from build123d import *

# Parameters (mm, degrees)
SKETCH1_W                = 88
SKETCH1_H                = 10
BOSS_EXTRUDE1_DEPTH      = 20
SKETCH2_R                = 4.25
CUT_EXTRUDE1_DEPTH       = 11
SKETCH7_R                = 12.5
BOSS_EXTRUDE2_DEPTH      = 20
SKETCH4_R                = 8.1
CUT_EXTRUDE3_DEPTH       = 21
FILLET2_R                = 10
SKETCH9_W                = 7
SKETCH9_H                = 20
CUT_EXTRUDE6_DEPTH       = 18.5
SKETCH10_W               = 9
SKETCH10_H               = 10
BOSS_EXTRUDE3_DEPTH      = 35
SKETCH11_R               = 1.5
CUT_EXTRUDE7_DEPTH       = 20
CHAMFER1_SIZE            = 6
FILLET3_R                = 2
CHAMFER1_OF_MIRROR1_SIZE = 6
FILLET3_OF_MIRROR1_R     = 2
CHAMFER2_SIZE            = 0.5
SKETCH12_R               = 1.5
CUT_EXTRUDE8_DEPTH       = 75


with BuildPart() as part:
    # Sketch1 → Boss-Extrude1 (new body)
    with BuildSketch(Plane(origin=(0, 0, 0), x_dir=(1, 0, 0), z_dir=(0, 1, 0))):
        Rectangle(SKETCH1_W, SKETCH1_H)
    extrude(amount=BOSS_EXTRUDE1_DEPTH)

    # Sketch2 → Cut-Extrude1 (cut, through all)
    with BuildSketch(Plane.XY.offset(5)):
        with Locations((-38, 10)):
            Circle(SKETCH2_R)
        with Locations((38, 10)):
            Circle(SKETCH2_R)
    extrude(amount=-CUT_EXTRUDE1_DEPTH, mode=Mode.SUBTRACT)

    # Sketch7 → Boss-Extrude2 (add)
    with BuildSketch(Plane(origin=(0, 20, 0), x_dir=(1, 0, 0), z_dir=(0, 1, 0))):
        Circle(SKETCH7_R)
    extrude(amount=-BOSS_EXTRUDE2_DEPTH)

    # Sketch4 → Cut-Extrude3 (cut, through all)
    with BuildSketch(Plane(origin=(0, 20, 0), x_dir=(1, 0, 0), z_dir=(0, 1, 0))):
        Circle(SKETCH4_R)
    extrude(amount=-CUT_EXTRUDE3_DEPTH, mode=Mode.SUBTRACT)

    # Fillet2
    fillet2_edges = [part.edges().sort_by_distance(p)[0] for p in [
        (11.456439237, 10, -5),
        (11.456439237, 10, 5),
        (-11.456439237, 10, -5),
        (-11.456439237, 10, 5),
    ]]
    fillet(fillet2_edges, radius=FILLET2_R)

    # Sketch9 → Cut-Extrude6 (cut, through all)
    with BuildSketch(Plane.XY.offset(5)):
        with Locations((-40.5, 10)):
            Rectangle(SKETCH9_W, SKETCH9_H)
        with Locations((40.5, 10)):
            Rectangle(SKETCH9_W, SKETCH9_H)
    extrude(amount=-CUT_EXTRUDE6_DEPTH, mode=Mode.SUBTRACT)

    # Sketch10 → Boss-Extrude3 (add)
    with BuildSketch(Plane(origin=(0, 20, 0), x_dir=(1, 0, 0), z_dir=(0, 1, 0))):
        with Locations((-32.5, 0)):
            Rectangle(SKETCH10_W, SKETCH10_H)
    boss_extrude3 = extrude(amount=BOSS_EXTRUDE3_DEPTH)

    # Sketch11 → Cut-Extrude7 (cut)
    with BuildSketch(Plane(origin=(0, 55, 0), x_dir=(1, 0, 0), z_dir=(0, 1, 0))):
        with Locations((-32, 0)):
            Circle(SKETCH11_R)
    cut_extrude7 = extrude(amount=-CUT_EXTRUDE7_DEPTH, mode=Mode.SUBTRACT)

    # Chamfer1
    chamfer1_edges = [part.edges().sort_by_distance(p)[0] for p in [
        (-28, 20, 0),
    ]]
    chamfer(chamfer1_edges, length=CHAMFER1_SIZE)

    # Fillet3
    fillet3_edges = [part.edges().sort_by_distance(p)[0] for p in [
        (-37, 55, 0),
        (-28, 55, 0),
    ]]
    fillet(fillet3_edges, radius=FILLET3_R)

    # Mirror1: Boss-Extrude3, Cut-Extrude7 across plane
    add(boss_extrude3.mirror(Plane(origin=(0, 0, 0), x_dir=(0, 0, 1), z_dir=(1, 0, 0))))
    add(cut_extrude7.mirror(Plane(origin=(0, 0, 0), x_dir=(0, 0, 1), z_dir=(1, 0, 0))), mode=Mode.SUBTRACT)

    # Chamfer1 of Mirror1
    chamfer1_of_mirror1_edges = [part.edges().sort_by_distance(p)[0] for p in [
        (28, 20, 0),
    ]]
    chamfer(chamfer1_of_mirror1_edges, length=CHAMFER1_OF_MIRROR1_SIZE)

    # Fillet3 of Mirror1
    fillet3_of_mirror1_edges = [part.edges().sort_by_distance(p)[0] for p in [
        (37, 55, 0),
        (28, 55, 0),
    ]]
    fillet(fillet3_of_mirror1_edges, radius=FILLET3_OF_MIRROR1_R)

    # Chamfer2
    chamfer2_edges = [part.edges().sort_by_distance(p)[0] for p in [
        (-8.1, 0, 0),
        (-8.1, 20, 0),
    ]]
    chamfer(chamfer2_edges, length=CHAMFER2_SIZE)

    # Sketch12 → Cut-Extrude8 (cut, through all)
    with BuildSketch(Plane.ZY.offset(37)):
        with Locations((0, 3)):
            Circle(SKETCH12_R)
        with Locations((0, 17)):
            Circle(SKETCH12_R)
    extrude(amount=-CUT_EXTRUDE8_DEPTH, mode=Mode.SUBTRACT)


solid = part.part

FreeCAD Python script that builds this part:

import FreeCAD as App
import Part
import Sketcher

V = App.Vector
Q = App.Units.Quantity


def edges_at(feature, points):
    """Names of the edges that pass closest to the given points."""
    edges = feature.Shape.Edges
    near = lambda p: min(range(len(edges)), key=lambda i: edges[i].distToShape(Part.Vertex(*p))[0])
    return sorted({f"Edge{near(p) + 1}" for p in points})

doc = App.newDocument("Part")
body = doc.addObject("PartDesign::Body", "Body")

# Sketch on XZ plane
sketch1 = body.newObject("Sketcher::SketchObject", "Sketch")
sketch1.AttachmentSupport = (doc.getObject("XZ_Plane"), [""])
sketch1.MapMode = "FlatFace"
sketch1.addGeometry(Part.LineSegment(V(-44, -5, 0), V(-44, 5, 0)), False)
sketch1.addGeometry(Part.LineSegment(V(-44, 5, 0), V(44, 5, 0)), False)
sketch1.addGeometry(Part.LineSegment(V(44, 5, 0), V(44, -5, 0)), False)
sketch1.addGeometry(Part.LineSegment(V(44, -5, 0), V(-44, -5, 0)), False)
sketch1.addConstraint(Sketcher.Constraint("Coincident", 0, 2, 1, 1))
sketch1.addConstraint(Sketcher.Constraint("Coincident", 1, 2, 2, 1))
sketch1.addConstraint(Sketcher.Constraint("Coincident", 2, 2, 3, 1))
sketch1.addConstraint(Sketcher.Constraint("Coincident", 3, 2, 0, 1))
sketch1.addConstraint(Sketcher.Constraint("Vertical", 0))
sketch1.addConstraint(Sketcher.Constraint("Horizontal", 1))
sketch1.addConstraint(Sketcher.Constraint("Vertical", 2))
sketch1.addConstraint(Sketcher.Constraint("Horizontal", 3))
sketch1.addConstraint(Sketcher.Constraint("Symmetric", 0, 2, 2, 2, -1, 1))
sketch1.addConstraint(Sketcher.Constraint("DistanceX", 1, 1, 1, 2, Q("88 mm")))
sketch1.addConstraint(Sketcher.Constraint("DistanceY", 0, 1, 0, 2, Q("10 mm")))
pad1 = body.newObject("PartDesign::Pad", "Pad")
pad1.Profile = sketch1
pad1.Length = 20
pad1.Reversed = True

# Sketch on XY plane
sketch2 = body.newObject("Sketcher::SketchObject", "Sketch001")
sketch2.AttachmentSupport = (doc.getObject("XY_Plane"), [""])
sketch2.MapMode = "FlatFace"
sketch2.AttachmentOffset = App.Placement(V(0, 0, 5), App.Rotation())
sketch2.addGeometry(Part.Circle(V(-38, 10, 0), V(0, 0, 1), 4.25), False)
sketch2.addGeometry(Part.Circle(V(38, 10, 0), V(0, 0, 1), 4.25), False)
sketch2.addConstraint(Sketcher.Constraint("Equal", 0, 1))
sketch2.addConstraint(Sketcher.Constraint("Symmetric", 0, 3, 1, 3, -2))
sketch2.addConstraint(Sketcher.Constraint("Diameter", 0, Q("8.5 mm")))
sketch2.addConstraint(Sketcher.Constraint("DistanceX", 0, 3, -1, 1, Q("38 mm")))
sketch2.addConstraint(Sketcher.Constraint("DistanceY", -1, 1, 0, 3, Q("10 mm")))
pocket1 = body.newObject("PartDesign::Pocket", "Pocket")
pocket1.Profile = sketch2
pocket1.Type = "ThroughAll"

# Sketch on XZ plane
sketch3 = body.newObject("Sketcher::SketchObject", "Sketch002")
sketch3.AttachmentSupport = (doc.getObject("XZ_Plane"), [""])
sketch3.MapMode = "FlatFace"
sketch3.AttachmentOffset = App.Placement(V(0, 0, -20), App.Rotation())
sketch3.addGeometry(Part.Circle(V(0, 0, 0), V(0, 0, 1), 12.5), False)
sketch3.addConstraint(Sketcher.Constraint("Coincident", 0, 3, -1, 1))
sketch3.addConstraint(Sketcher.Constraint("Diameter", 0, Q("25 mm")))
pad2 = body.newObject("PartDesign::Pad", "Pad001")
pad2.Profile = sketch3
pad2.Length = 20

# Sketch on XZ plane
sketch4 = body.newObject("Sketcher::SketchObject", "Sketch003")
sketch4.AttachmentSupport = (doc.getObject("XZ_Plane"), [""])
sketch4.MapMode = "FlatFace"
sketch4.AttachmentOffset = App.Placement(V(0, 0, -20), App.Rotation())
sketch4.addGeometry(Part.Circle(V(0, 0, 0), V(0, 0, 1), 8.1), False)
sketch4.addConstraint(Sketcher.Constraint("Coincident", 0, 3, -1, 1))
sketch4.addConstraint(Sketcher.Constraint("Diameter", 0, Q("16.2 mm")))
pocket2 = body.newObject("PartDesign::Pocket", "Pocket001")
pocket2.Profile = sketch4
pocket2.Type = "ThroughAll"
pocket2.Reversed = True
doc.recompute()

fillet = body.newObject("PartDesign::Fillet", "Fillet")
fillet.Base = (pocket2, edges_at(pocket2, [
    (11.456, 10, -5),
    (11.456, 10, 5),
    (-11.456, 10, -5),
    (-11.456, 10, 5),
]))
fillet.Radius = 10

# Sketch on XY plane
sketch5 = body.newObject("Sketcher::SketchObject", "Sketch004")
sketch5.AttachmentSupport = (doc.getObject("XY_Plane"), [""])
sketch5.MapMode = "FlatFace"
sketch5.AttachmentOffset = App.Placement(V(0, 0, 5), App.Rotation())
sketch5.addGeometry(Part.LineSegment(V(-44, 20, 0), V(-44, 0, 0)), False)
sketch5.addGeometry(Part.LineSegment(V(-44, 0, 0), V(-37, 0, 0)), False)
sketch5.addGeometry(Part.LineSegment(V(-37, 0, 0), V(-37, 20, 0)), False)
sketch5.addGeometry(Part.LineSegment(V(-37, 20, 0), V(-44, 20, 0)), False)
sketch5.addGeometry(Part.LineSegment(V(37, 20, 0), V(37, 0, 0)), False)
sketch5.addGeometry(Part.LineSegment(V(37, 0, 0), V(44, 0, 0)), False)
sketch5.addGeometry(Part.LineSegment(V(44, 0, 0), V(44, 20, 0)), False)
sketch5.addGeometry(Part.LineSegment(V(44, 20, 0), V(37, 20, 0)), False)
sketch5.addConstraint(Sketcher.Constraint("Coincident", 0, 2, 1, 1))
sketch5.addConstraint(Sketcher.Constraint("Coincident", 1, 2, 2, 1))
sketch5.addConstraint(Sketcher.Constraint("Coincident", 2, 2, 3, 1))
sketch5.addConstraint(Sketcher.Constraint("Coincident", 3, 2, 0, 1))
sketch5.addConstraint(Sketcher.Constraint("Coincident", 4, 2, 5, 1))
sketch5.addConstraint(Sketcher.Constraint("Coincident", 5, 2, 6, 1))
sketch5.addConstraint(Sketcher.Constraint("Coincident", 6, 2, 7, 1))
sketch5.addConstraint(Sketcher.Constraint("Coincident", 7, 2, 4, 1))
sketch5.addConstraint(Sketcher.Constraint("Vertical", 0))
sketch5.addConstraint(Sketcher.Constraint("Horizontal", 1))
sketch5.addConstraint(Sketcher.Constraint("Vertical", 2))
sketch5.addConstraint(Sketcher.Constraint("Horizontal", 3))
sketch5.addConstraint(Sketcher.Constraint("Vertical", 4))
sketch5.addConstraint(Sketcher.Constraint("Horizontal", 5))
sketch5.addConstraint(Sketcher.Constraint("Vertical", 6))
sketch5.addConstraint(Sketcher.Constraint("Horizontal", 7))
sketch5.addConstraint(Sketcher.Constraint("Symmetric", 1, 2, 4, 2, -1, 1))
sketch5.addConstraint(Sketcher.Constraint("Symmetric", 0, 2, 5, 2, -2))
sketch5.addConstraint(Sketcher.Constraint("Horizontal", 3, 2, 6, 2))
sketch5.addConstraint(Sketcher.Constraint("DistanceX", 1, 1, 1, 2, Q("7 mm")))
sketch5.addConstraint(Sketcher.Constraint("DistanceY", 0, 2, 0, 1, Q("20 mm")))
sketch5.addConstraint(Sketcher.Constraint("DistanceX", 0, 2, -1, 1, Q("44 mm")))
pocket3 = body.newObject("PartDesign::Pocket", "Pocket002")
pocket3.Profile = sketch5
pocket3.Type = "ThroughAll"

# Sketch on XZ plane
sketch6 = body.newObject("Sketcher::SketchObject", "Sketch005")
sketch6.AttachmentSupport = (doc.getObject("XZ_Plane"), [""])
sketch6.MapMode = "FlatFace"
sketch6.AttachmentOffset = App.Placement(V(0, 0, -20), App.Rotation())
sketch6.addGeometry(Part.LineSegment(V(-37, -5, 0), V(-37, 5, 0)), False)
sketch6.addGeometry(Part.LineSegment(V(-37, 5, 0), V(-28, 5, 0)), False)
sketch6.addGeometry(Part.LineSegment(V(-28, 5, 0), V(-28, -5, 0)), False)
sketch6.addGeometry(Part.LineSegment(V(-28, -5, 0), V(-37, -5, 0)), False)
sketch6.addConstraint(Sketcher.Constraint("Coincident", 0, 2, 1, 1))
sketch6.addConstraint(Sketcher.Constraint("Coincident", 1, 2, 2, 1))
sketch6.addConstraint(Sketcher.Constraint("Coincident", 2, 2, 3, 1))
sketch6.addConstraint(Sketcher.Constraint("Coincident", 3, 2, 0, 1))
sketch6.addConstraint(Sketcher.Constraint("Vertical", 0))
sketch6.addConstraint(Sketcher.Constraint("Horizontal", 1))
sketch6.addConstraint(Sketcher.Constraint("Vertical", 2))
sketch6.addConstraint(Sketcher.Constraint("Horizontal", 3))
sketch6.addConstraint(Sketcher.Constraint("DistanceX", 1, 1, 1, 2, Q("9 mm")))
sketch6.addConstraint(Sketcher.Constraint("DistanceY", 0, 1, 0, 2, Q("10 mm")))
sketch6.addConstraint(Sketcher.Constraint("DistanceX", 0, 2, -1, 1, Q("37 mm")))
sketch6.addConstraint(Sketcher.Constraint("DistanceY", -1, 1, 0, 2, Q("5 mm")))
pad3 = body.newObject("PartDesign::Pad", "Pad002")
pad3.Profile = sketch6
pad3.Length = 35
pad3.Reversed = True

# Sketch on XZ plane
sketch7 = body.newObject("Sketcher::SketchObject", "Sketch006")
sketch7.AttachmentSupport = (doc.getObject("XZ_Plane"), [""])
sketch7.MapMode = "FlatFace"
sketch7.AttachmentOffset = App.Placement(V(0, 0, -55), App.Rotation())
sketch7.addGeometry(Part.Circle(V(-32, 0, 0), V(0, 0, 1), 1.5), False)
sketch7.addConstraint(Sketcher.Constraint("PointOnObject", 0, 3, -1))
sketch7.addConstraint(Sketcher.Constraint("Diameter", 0, Q("3 mm")))
sketch7.addConstraint(Sketcher.Constraint("DistanceX", 0, 3, -1, 1, Q("32 mm")))
pocket4 = body.newObject("PartDesign::Pocket", "Pocket003")
pocket4.Profile = sketch7
pocket4.Length = 20
pocket4.Reversed = True
doc.recompute()

chamfer = body.newObject("PartDesign::Chamfer", "Chamfer")
chamfer.Base = (pocket4, edges_at(pocket4, [(-28, 20, 0)]))
chamfer.Size = 6
doc.recompute()

fillet2 = body.newObject("PartDesign::Fillet", "Fillet001")
fillet2.Base = (chamfer, edges_at(chamfer, [(-37, 55, 0), (-28, 55, 0)]))
fillet2.Radius = 2
doc.recompute()

mirrored = body.newObject("PartDesign::Mirrored", "Mirrored")
mirrored.Originals = [pad3, pocket4]
mirrored.MirrorPlane = (doc.getObject("YZ_Plane"), [""])
body.Tip = mirrored
doc.recompute()

chamfer2 = body.newObject("PartDesign::Chamfer", "Chamfer001")
chamfer2.Base = (mirrored, edges_at(mirrored, [(28, 20, 0)]))
chamfer2.Size = 6
doc.recompute()

fillet3 = body.newObject("PartDesign::Fillet", "Fillet002")
fillet3.Base = (chamfer2, edges_at(chamfer2, [(37, 55, 0), (28, 55, 0)]))
fillet3.Radius = 2
doc.recompute()

chamfer3 = body.newObject("PartDesign::Chamfer", "Chamfer002")
chamfer3.Base = (fillet3, edges_at(fillet3, [(-8.1, 0, 0), (-8.1, 20, 0)]))
chamfer3.Size = 0.5

# Sketch on YZ plane
sketch8 = body.newObject("Sketcher::SketchObject", "Sketch007")
sketch8.AttachmentSupport = (doc.getObject("YZ_Plane"), [""])
sketch8.MapMode = "FlatFace"
sketch8.AttachmentOffset = App.Placement(V(0, 0, -37), App.Rotation())
sketch8.addGeometry(Part.Circle(V(3, 0, 0), V(0, 0, 1), 1.5), False)
sketch8.addGeometry(Part.Circle(V(17, 0, 0), V(0, 0, 1), 1.5), False)
sketch8.addConstraint(Sketcher.Constraint("Equal", 0, 1))
sketch8.addConstraint(Sketcher.Constraint("PointOnObject", 0, 3, -1))
sketch8.addConstraint(Sketcher.Constraint("PointOnObject", 1, 3, -1))
sketch8.addConstraint(Sketcher.Constraint("Diameter", 0, Q("3 mm")))
sketch8.addConstraint(Sketcher.Constraint("DistanceX", -1, 1, 0, 3, Q("3 mm")))
sketch8.addConstraint(Sketcher.Constraint("DistanceX", -1, 1, 1, 3, Q("17 mm")))
pocket5 = body.newObject("PartDesign::Pocket", "Pocket004")
pocket5.Profile = sketch8
pocket5.Type = "ThroughAll"
pocket5.Reversed = True

doc.recompute()
